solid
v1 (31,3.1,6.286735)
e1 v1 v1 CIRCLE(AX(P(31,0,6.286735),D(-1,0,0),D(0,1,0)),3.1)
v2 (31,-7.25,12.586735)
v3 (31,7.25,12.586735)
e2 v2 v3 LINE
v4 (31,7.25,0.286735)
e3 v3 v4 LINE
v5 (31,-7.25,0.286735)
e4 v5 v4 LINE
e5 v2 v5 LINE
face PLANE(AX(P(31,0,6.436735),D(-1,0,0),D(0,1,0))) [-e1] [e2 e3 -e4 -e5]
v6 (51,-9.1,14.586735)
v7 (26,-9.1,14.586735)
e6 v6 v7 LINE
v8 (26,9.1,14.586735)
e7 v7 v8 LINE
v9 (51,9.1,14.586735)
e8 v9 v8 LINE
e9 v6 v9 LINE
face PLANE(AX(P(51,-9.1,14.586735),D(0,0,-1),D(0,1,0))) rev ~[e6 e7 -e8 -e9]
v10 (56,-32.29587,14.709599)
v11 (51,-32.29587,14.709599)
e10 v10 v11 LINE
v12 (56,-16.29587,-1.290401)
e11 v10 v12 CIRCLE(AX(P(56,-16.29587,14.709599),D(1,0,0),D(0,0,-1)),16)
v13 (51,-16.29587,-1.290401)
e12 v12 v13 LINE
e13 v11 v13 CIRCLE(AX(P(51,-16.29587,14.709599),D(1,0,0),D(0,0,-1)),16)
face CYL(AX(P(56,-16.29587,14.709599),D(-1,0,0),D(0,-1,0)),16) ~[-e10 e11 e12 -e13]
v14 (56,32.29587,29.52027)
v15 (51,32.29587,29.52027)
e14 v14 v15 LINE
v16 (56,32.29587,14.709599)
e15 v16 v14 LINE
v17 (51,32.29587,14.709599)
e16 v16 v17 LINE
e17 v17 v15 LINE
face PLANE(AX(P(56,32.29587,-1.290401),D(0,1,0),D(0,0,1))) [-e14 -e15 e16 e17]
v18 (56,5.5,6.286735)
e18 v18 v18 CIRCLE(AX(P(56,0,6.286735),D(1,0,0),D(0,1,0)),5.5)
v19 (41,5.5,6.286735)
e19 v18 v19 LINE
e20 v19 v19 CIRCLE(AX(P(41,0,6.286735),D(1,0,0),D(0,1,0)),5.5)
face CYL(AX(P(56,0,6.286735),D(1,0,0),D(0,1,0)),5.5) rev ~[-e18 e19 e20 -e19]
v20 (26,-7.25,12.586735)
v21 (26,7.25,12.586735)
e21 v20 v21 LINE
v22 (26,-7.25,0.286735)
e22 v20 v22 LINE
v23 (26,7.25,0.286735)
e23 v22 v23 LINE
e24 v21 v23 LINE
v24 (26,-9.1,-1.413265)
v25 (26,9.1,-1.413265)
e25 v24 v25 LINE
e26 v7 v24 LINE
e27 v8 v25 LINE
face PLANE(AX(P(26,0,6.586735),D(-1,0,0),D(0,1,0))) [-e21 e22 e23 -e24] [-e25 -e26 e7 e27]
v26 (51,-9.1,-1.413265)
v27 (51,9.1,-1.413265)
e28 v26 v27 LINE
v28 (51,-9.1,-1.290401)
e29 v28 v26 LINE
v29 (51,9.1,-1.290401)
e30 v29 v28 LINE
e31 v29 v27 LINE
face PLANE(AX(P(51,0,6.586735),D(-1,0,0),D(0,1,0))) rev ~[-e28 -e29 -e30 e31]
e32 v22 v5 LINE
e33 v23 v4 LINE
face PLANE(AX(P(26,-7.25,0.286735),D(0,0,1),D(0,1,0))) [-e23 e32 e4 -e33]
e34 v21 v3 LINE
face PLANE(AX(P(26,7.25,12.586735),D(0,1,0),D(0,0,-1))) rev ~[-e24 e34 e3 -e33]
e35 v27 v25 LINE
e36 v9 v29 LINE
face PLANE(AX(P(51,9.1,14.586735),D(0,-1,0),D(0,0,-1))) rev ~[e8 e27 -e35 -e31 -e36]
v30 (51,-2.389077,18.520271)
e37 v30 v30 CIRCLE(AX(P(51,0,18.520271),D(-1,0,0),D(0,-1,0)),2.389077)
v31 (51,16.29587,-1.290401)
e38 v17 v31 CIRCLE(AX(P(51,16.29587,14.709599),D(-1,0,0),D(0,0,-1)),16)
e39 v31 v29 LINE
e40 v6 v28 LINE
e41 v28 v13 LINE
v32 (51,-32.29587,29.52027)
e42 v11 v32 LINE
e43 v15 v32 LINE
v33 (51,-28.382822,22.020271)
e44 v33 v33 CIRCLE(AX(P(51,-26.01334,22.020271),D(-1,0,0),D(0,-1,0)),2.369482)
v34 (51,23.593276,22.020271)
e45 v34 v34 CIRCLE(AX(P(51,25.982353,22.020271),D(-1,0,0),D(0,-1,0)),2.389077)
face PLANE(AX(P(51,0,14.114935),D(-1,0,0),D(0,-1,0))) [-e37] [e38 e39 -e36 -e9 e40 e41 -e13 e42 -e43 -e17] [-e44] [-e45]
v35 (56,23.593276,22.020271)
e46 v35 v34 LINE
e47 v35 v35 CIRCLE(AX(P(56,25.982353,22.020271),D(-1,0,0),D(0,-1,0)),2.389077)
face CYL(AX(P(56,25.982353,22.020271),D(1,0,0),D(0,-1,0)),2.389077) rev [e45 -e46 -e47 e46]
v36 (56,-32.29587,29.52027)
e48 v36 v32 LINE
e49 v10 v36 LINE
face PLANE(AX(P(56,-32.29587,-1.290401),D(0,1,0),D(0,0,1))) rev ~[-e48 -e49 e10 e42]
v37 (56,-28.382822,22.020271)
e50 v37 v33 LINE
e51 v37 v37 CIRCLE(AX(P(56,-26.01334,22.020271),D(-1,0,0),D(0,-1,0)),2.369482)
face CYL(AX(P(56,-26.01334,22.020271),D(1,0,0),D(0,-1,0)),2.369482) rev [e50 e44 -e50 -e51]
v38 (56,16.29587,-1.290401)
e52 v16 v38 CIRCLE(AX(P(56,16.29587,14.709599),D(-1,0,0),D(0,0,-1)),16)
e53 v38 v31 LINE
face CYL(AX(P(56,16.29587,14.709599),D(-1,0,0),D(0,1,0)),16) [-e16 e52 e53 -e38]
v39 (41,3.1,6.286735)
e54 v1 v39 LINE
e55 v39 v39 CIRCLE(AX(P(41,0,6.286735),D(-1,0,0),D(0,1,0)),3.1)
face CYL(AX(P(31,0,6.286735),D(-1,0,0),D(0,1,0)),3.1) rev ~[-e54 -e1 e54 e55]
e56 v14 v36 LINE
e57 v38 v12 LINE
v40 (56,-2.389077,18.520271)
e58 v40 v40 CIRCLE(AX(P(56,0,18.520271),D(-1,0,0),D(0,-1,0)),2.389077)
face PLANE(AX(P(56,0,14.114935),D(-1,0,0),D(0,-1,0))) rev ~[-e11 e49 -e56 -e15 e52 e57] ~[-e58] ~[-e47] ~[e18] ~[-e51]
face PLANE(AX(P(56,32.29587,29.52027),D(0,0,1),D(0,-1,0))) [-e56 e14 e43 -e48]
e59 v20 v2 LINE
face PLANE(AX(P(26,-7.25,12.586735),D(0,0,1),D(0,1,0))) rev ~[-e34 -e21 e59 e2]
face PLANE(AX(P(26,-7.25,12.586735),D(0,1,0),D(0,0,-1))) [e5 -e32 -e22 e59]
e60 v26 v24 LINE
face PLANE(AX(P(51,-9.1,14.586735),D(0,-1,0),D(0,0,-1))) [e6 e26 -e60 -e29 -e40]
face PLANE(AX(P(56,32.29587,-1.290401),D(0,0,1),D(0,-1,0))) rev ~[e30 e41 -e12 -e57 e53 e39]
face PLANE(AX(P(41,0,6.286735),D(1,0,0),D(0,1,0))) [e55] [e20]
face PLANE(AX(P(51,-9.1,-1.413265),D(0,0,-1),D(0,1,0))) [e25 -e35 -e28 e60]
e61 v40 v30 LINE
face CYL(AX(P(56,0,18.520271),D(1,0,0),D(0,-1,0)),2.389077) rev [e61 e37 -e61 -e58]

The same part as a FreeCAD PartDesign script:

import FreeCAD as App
import Part
import Sketcher
from FreeCAD import Vector


def edges_at(feature, points):
    """Names of the edges that pass closest to the given points."""
    edges = feature.Shape.Edges
    near = lambda p: min(range(len(edges)), key=lambda i: edges[i].distToShape(Part.Vertex(*p))[0])
    return sorted({f"Edge{near(p) + 1}" for p in points})

doc = App.newDocument("Part")
body = doc.addObject("PartDesign::Body", "Body")

sketch1 = body.newObject("Sketcher::SketchObject", "Sketch")
sketch1.AttachmentSupport = (doc.getObject("YZ_Plane"), [""])
sketch1.MapMode = "FlatFace"
sketch1.addGeometry([
    Part.LineSegment(Vector(32.29587, 29.52027, 0), Vector(32.29587, -1.290401, 0)),
    Part.LineSegment(Vector(32.29587, -1.290401, 0), Vector(-32.29587, -1.290401, 0)),
    Part.LineSegment(Vector(-32.29587, -1.290401, 0), Vector(-32.29587, 29.52027, 0)),
    Part.LineSegment(Vector(-32.29587, 29.52027, 0), Vector(32.29587, 29.52027, 0)),
    Part.Circle(Vector(0, 18.520271, 0), Vector(0, 0, 1), 2.389077),
    Part.Circle(Vector(25.982353, 22.020271, 0), Vector(0, 0, 1), 2.389077),
    Part.Circle(Vector(-26.01334, 22.020271, 0), Vector(0, 0, 1), 2.369482),
], False)
sketch1.addConstraint([
    Sketcher.Constraint("Coincident", 0, 2, 1, 1),
    Sketcher.Constraint("Coincident", 1, 2, 2, 1),
    Sketcher.Constraint("Coincident", 2, 2, 3, 1),
    Sketcher.Constraint("Coincident", 3, 2, 0, 1),
    Sketcher.Constraint("Vertical", 0),
    Sketcher.Constraint("Horizontal", 1),
    Sketcher.Constraint("Vertical", 2),
    Sketcher.Constraint("Horizontal", 3),
    Sketcher.Constraint("Equal", 4, 5),
    Sketcher.Constraint("PointOnObject", 4, 3, -2),
    Sketcher.Constraint("Horizontal", 5, 3, 6, 3),
    Sketcher.Constraint("DistanceY", 4, 3, 2, 2, 10.999999),
    Sketcher.Constraint("DistanceY", 4, 3, 5, 3, 3.5),
    Sketcher.Constraint("Diameter", 4, 4.778154),
    Sketcher.Constraint("Diameter", 6, 4.738964),
    Sketcher.Constraint("DistanceX", 1, 2, 1, 1, 64.59174),
    Sketcher.Constraint("DistanceY", 0, 2, 0, 1, 30.810671),
    Sketcher.Constraint("DistanceY", 0, 2, -1, 1, 1.290401),
    Sketcher.Constraint("DistanceX", 6, 3, -1, 1, 26.01334),
    Sketcher.Constraint("DistanceX", -1, 1, 0, 2, 32.29587),
    Sketcher.Constraint("DistanceX", -1, 1, 5, 3, 25.982353),
])
pad1 = body.newObject("PartDesign::Pad", "Pad")
pad1.Profile = sketch1
pad1.Length = 5
pad1.Reversed = True

sketch2 = body.newObject("Sketcher::SketchObject", "Sketch001")
sketch2.AttachmentSupport = (doc.getObject("YZ_Plane"), [""])
sketch2.MapMode = "FlatFace"
sketch2.AttachmentOffset = App.Placement(Vector(0, 0, -5), App.Rotation())
sketch2.addGeometry([
    Part.LineSegment(Vector(-9.1, -1.413265, 0), Vector(-9.1, 14.586735, 0)),
    Part.LineSegment(Vector(-9.1, 14.586735, 0), Vector(9.1, 14.586735, 0)),
    Part.LineSegment(Vector(9.1, 14.586735, 0), Vector(9.1, -1.413265, 0)),
    Part.LineSegment(Vector(9.1, -1.413265, 0), Vector(-9.1, -1.413265, 0)),
], False)
sketch2.addConstraint([
    Sketcher.Constraint("Coincident", 0, 2, 1, 1),
    Sketcher.Constraint("Coincident", 1, 2, 2, 1),
    Sketcher.Constraint("Coincident", 2, 2, 3, 1),
    Sketcher.Constraint("Coincident", 3, 2, 0, 1),
    Sketcher.Constraint("Vertical", 0),
    Sketcher.Constraint("Horizontal", 1),
    Sketcher.Constraint("Vertical", 2),
    Sketcher.Constraint("Horizontal", 3),
    Sketcher.Constraint("DistanceY", 0, 1, 0, 2, 16.0),
    Sketcher.Constraint("DistanceX", 1, 1, 1, 2, 18.2),
    Sketcher.Constraint("DistanceX", 0, 2, -1, 1, 9.1),
    Sketcher.Constraint("DistanceY", -1, 1, 0, 2, 14.586735),
])
pad2 = body.newObject("PartDesign::Pad", "Pad001")
pad2.Profile = sketch2
pad2.Length = 25
pad2.Reversed = True

sketch3 = body.newObject("Sketcher::SketchObject", "Sketch002")
sketch3.AttachmentSupport = (doc.getObject("YZ_Plane"), [""])
sketch3.MapMode = "FlatFace"
sketch3.AttachmentOffset = App.Placement(Vector(0, 0, -30), App.Rotation())
sketch3.addGeometry([
    Part.LineSegment(Vector(-7.25, 0.286735, 0), Vector(-7.25, 12.586735, 0)),
    Part.LineSegment(Vector(-7.25, 12.586735, 0), Vector(7.25, 12.586735, 0)),
    Part.LineSegment(Vector(7.25, 12.586735, 0), Vector(7.25, 0.286735, 0)),
    Part.LineSegment(Vector(7.25, 0.286735, 0), Vector(-7.25, 0.286735, 0)),
], False)
sketch3.addConstraint([
    Sketcher.Constraint("Coincident", 0, 2, 1, 1),
    Sketcher.Constraint("Coincident", 1, 2, 2, 1),
    Sketcher.Constraint("Coincident", 2, 2, 3, 1),
    Sketcher.Constraint("Coincident", 3, 2, 0, 1),
    Sketcher.Constraint("Vertical", 0),
    Sketcher.Constraint("Horizontal", 1),
    Sketcher.Constraint("Vertical", 2),
    Sketcher.Constraint("Horizontal", 3),
    Sketcher.Constraint("DistanceX", 1, 1, 1, 2, 14.5),
    Sketcher.Constraint("DistanceY", 0, 1, 0, 2, 12.3),
    Sketcher.Constraint("DistanceX", 0, 2, -1, 1, 7.25),
    Sketcher.Constraint("DistanceY", -1, 1, 0, 2, 12.586735),
])
pocket1 = body.newObject("PartDesign::Pocket", "Pocket")
pocket1.Profile = sketch3
pocket1.Length = 5
pocket1.Reversed = True

sketch4 = body.newObject("Sketcher::SketchObject", "Sketch003")
sketch4.AttachmentSupport = (doc.getObject("YZ_Plane"), [""])
sketch4.MapMode = "FlatFace"
sketch4.AttachmentOffset = App.Placement(Vector(0, 0, -25), App.Rotation())
sketch4.addGeometry(Part.Circle(Vector(0, 6.286735, 0), Vector(0, 0, 1), 3.1), False)
sketch4.addConstraint([
    Sketcher.Constraint("PointOnObject", 0, 3, -2),
    Sketcher.Constraint("Diameter", 0, 6.2),
    Sketcher.Constraint("DistanceY", -1, 1, 0, 3, 6.286735),
])
pocket2 = body.newObject("PartDesign::Pocket", "Pocket001")
pocket2.Profile = sketch4
pocket2.Type = "ThroughAll"
pocket2.Reversed = True

sketch5 = body.newObject("Sketcher::SketchObject", "Sketch004")
sketch5.AttachmentSupport = (doc.getObject("YZ_Plane"), [""])
sketch5.MapMode = "FlatFace"
sketch5.addGeometry(Part.Circle(Vector(0, 6.286735, 0), Vector(0, 0, 1), 5.5), False)
sketch5.addConstraint([
    Sketcher.Constraint("PointOnObject", 0, 3, -2),
    Sketcher.Constraint("Diameter", 0, 11.0),
    Sketcher.Constraint("DistanceY", -1, 1, 0, 3, 6.286735),
])
pocket3 = body.newObject("PartDesign::Pocket", "Pocket002")
pocket3.Profile = sketch5
pocket3.Length = 15
doc.recompute()

fillet = body.newObject("PartDesign::Fillet", "Fillet")
fillet.Base = (pocket3, edges_at(pocket3, [(-2.5, -32.296, -1.29), (-2.5, 32.296, -1.29)]))
fillet.Radius = 16
body2 = doc.addObject("PartDesign::Body", "Body001")
doc.recompute()

body.Placement = App.Placement(Vector(56, 0, 0), App.Rotation(Vector(0, 0, 1), 0))
boolean = body2.newObject("PartDesign::Boolean", "Boolean")
boolean.Type = "Fuse"
boolean.addObjects([body])

doc.recompute()
